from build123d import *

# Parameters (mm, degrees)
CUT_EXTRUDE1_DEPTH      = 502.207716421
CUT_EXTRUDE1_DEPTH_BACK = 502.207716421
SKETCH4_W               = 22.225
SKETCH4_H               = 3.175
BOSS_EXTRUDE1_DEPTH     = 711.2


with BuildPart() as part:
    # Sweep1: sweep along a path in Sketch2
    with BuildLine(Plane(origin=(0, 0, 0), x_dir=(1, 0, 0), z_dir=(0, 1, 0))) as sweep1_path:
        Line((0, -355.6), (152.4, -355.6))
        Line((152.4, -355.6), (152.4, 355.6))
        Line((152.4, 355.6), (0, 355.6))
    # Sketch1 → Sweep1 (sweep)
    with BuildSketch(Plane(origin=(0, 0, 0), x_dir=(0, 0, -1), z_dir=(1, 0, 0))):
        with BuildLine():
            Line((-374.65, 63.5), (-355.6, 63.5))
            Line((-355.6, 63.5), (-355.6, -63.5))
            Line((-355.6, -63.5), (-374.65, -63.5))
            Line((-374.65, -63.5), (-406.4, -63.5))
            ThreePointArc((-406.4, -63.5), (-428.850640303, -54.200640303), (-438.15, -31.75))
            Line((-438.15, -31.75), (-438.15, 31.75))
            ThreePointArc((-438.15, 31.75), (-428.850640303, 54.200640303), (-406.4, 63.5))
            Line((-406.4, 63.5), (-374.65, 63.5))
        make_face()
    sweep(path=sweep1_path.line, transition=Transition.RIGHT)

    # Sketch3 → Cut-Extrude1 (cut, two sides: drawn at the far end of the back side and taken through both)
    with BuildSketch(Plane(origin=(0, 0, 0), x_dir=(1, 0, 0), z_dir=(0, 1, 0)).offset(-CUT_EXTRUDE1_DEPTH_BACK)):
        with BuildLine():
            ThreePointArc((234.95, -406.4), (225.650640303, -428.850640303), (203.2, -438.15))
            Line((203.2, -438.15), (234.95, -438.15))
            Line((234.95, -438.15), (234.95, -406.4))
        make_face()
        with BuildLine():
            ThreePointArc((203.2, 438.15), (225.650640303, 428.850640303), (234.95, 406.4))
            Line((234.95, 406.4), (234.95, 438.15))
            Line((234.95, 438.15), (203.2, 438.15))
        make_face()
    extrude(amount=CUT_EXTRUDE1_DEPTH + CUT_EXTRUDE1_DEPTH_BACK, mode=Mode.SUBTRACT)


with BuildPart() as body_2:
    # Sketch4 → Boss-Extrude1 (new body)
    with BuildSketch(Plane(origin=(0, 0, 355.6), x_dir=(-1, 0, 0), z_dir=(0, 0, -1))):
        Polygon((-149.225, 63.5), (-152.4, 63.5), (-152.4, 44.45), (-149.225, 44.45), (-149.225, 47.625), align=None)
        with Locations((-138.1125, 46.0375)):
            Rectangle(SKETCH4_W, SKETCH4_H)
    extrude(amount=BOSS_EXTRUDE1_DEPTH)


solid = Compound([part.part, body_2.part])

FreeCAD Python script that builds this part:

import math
import FreeCAD as App
import Part
import Sketcher
from FreeCAD import Vector
Q = App.Units.Quantity

doc = App.newDocument("Part")
params = doc.addObject("Spreadsheet::Sheet", "Params")
for row, (alias, value) in enumerate([
    ("sketch1_width", "5 in"),
    ("sketch1_height", "2 in"),
    ("sketch1_radius", "1.25 in"),
    ("sketch2_width", "6 in"),
    ("sketch2_height", "28 in"),
    ("sketch3_radius", "1.25 in"),
    ("sketch4_width", "1 in"),
    ("sketch4_height", "0.75 in"),
    ("sketch4_width2", "0.125 in"),
    ("pad1_length", "28 in"),
], start=1):
    params.set(f"A{row}", alias)
    params.set(f"B{row}", "=" + value)
    params.setAlias(f"B{row}", alias)

body = doc.addObject("PartDesign::Body", "Body")

# Sketch on YZ plane
sketch1 = body.newObject("Sketcher::SketchObject", "Sketch")
sketch1.AttachmentSupport = (doc.getObject("YZ_Plane"), [""])
sketch1.MapMode = "FlatFace"
sketch1.addGeometry([
    Part.LineSegment(Vector(-64, 356, 0), Vector(64, 356, 0)),  # 0
    Part.LineSegment(Vector(64, 356, 0), Vector(64, 406, 0)),  # 1
    Part.ArcOfCircle(Part.Circle(Vector(32, 406, 0), Vector(0, 0, 1), 32), math.radians(0), math.radians(90)),  # 2
    Part.LineSegment(Vector(32, 438, 0), Vector(-32, 438, 0)),  # 3
    Part.ArcOfCircle(Part.Circle(Vector(-32, 406, 0), Vector(0, 0, 1), 32), math.radians(90), math.radians(180)),  # 4
    Part.LineSegment(Vector(-64, 406, 0), Vector(-64, 356, 0)),  # 5
], False)
sketch1.addConstraint([
    Sketcher.Constraint("Coincident", 0, 2, 1, 1),
    Sketcher.Constraint("Tangent", 1, 2, 2, 1),
    Sketcher.Constraint("Tangent", 2, 2, 3, 1),
    Sketcher.Constraint("Tangent", 3, 2, 4, 1),
    Sketcher.Constraint("Tangent", 4, 2, 5, 1),
    Sketcher.Constraint("Coincident", 5, 2, 0, 1),
    Sketcher.Constraint("Horizontal", 0),
    Sketcher.Constraint("Vertical", 1),
    Sketcher.Constraint("Horizontal", 3),
    Sketcher.Constraint("Vertical", 5),
    Sketcher.Constraint("Equal", 2, 4),
    Sketcher.Constraint("DistanceX", 0, 1, 0, 2, Q("5 in")),
    Sketcher.Constraint("DistanceY", 1, 1, 1, 2, Q("2 in")),
    Sketcher.Constraint("Radius", 2, Q("1.25 in")),
    Sketcher.Constraint("DistanceY", -1, 1, 2, 3, Q("16 in")),
    Sketcher.Constraint("DistanceX", -1, 1, 0, 2, Q("2.5 in")),
])
sketch1.setExpression("Constraints[11]", "Params.sketch1_width")
sketch1.setExpression("Constraints[12]", "Params.sketch1_height")
sketch1.setExpression("Constraints[13]", "Params.sketch1_radius")

# Sketch on XZ plane
sketch2 = body.newObject("Sketcher::SketchObject", "Sketch001")
sketch2.AttachmentSupport = (doc.getObject("XZ_Plane"), [""])
sketch2.MapMode = "FlatFace"
sketch2.addGeometry([
    Part.LineSegment(Vector(0, 356, 0), Vector(152, 356, 0)),
    Part.LineSegment(Vector(152, 356, 0), Vector(152, -356, 0)),
    Part.LineSegment(Vector(152, -356, 0), Vector(0, -356, 0)),
], False)
sketch2.addConstraint([
    Sketcher.Constraint("Coincident", 0, 2, 1, 1),
    Sketcher.Constraint("Coincident", 1, 2, 2, 1),
    Sketcher.Constraint("Horizontal", 0),
    Sketcher.Constraint("Vertical", 1),
    Sketcher.Constraint("Horizontal", 2),
    Sketcher.Constraint("Symmetric", 0, 1, 2, 2, -1, 1),
    Sketcher.Constraint("PointOnObject", 0, 1, -2),
    Sketcher.Constraint("DistanceX", 0, 1, 0, 2, Q("6 in")),
    Sketcher.Constraint("DistanceY", 1, 2, 1, 1, Q("28 in")),
])
sketch2.setExpression("Constraints[7]", "Params.sketch2_width")
sketch2.setExpression("Constraints[8]", "Params.sketch2_height")
doc.recompute()

additivepipe = body.newObject("PartDesign::AdditivePipe", "AdditivePipe")
additivepipe.Profile = sketch1
additivepipe.Spine = (sketch2, ["Edge1", "Edge2", "Edge3"])
additivepipe.Transition = "Right corner"

# Sketch on XZ plane
sketch3 = body.newObject("Sketcher::SketchObject", "Sketch002")
sketch3.AttachmentSupport = (doc.getObject("XZ_Plane"), [""])
sketch3.MapMode = "FlatFace"
sketch3.addGeometry([
    Part.ArcOfCircle(Part.Circle(Vector(203, 406, 0), Vector(0, 0, 1), 32), math.radians(0), math.radians(90)),  # 0
    Part.LineSegment(Vector(203, 438, 0), Vector(235, 438, 0)),  # 1
    Part.LineSegment(Vector(235, 438, 0), Vector(235, 406, 0)),  # 2
    Part.ArcOfCircle(Part.Circle(Vector(203, -406, 0), Vector(0, 0, 1), 32), math.radians(-90), math.radians(0)),  # 3
    Part.LineSegment(Vector(235, -406, 0), Vector(235, -438, 0)),  # 4
    Part.LineSegment(Vector(235, -438, 0), Vector(203, -438, 0)),  # 5
], False)
sketch3.addConstraint([
    Sketcher.Constraint("Tangent", 0, 2, 1, 1),
    Sketcher.Constraint("Coincident", 1, 2, 2, 1),
    Sketcher.Constraint("Tangent", 2, 2, 0, 1),
    Sketcher.Constraint("Tangent", 3, 2, 4, 1),
    Sketcher.Constraint("Coincident", 4, 2, 5, 1),
    Sketcher.Constraint("Tangent", 5, 2, 3, 1),
    Sketcher.Constraint("Horizontal", 1),
    Sketcher.Constraint("Vertical", 2),
    Sketcher.Constraint("Vertical", 4),
    Sketcher.Constraint("Horizontal", 5),
    Sketcher.Constraint("Equal", 0, 3),
    Sketcher.Constraint("Symmetric", 0, 3, 3, 3, -1),
    Sketcher.Constraint("Radius", 0, Q("1.25 in")),
    Sketcher.Constraint("DistanceX", -1, 1, 0, 3, Q("8 in")),
    Sketcher.Constraint("DistanceY", -1, 1, 0, 3, Q("16 in")),
])
sketch3.setExpression("Constraints[12]", "Params.sketch3_radius")
pocket1 = body.newObject("PartDesign::Pocket", "Pocket")
pocket1.Profile = sketch3
pocket1.Type = "ThroughAll"
pocket1.Midplane = True
body2 = doc.addObject("PartDesign::Body", "Body001")

# Sketch on XY plane
sketch4 = body2.newObject("Sketcher::SketchObject", "Sketch003")
sketch4.AttachmentSupport = (doc.getObject("XY_Plane001"), [""])
sketch4.MapMode = "FlatFace"
sketch4.AttachmentOffset = App.Placement(Vector(0, 0, 14 * 25.4), App.Rotation())
sketch4.addGeometry([
    Part.LineSegment(Vector(149.2, 63.5, 0), Vector(152.4, 63.5, 0)),  # 0
    Part.LineSegment(Vector(152.4, 63.5, 0), Vector(152.4, 44.5, 0)),  # 1
    Part.LineSegment(Vector(152.4, 44.5, 0), Vector(127, 44.5, 0)),  # 2
    Part.LineSegment(Vector(127, 44.5, 0), Vector(127, 47.6, 0)),  # 3
    Part.LineSegment(Vector(127, 47.6, 0), Vector(149.2, 47.6, 0)),  # 4
    Part.LineSegment(Vector(149.2, 47.6, 0), Vector(149.2, 63.5, 0)),  # 5
], False)
sketch4.addConstraint([
    Sketcher.Constraint("Coincident", 0, 2, 1, 1),
    Sketcher.Constraint("Coincident", 1, 2, 2, 1),
    Sketcher.Constraint("Coincident", 2, 2, 3, 1),
    Sketcher.Constraint("Coincident", 3, 2, 4, 1),
    Sketcher.Constraint("Coincident", 4, 2, 5, 1),
    Sketcher.Constraint("Coincident", 5, 2, 0, 1),
    Sketcher.Constraint("Horizontal", 0),
    Sketcher.Constraint("Vertical", 1),
    Sketcher.Constraint("Horizontal", 2),
    Sketcher.Constraint("Vertical", 3),
    Sketcher.Constraint("Horizontal", 4),
    Sketcher.Constraint("Vertical", 5),
    Sketcher.Constraint("Equal", 0, 3),
    Sketcher.Constraint("DistanceX", 2, 2, 2, 1, Q("1 in")),
    Sketcher.Constraint("DistanceX", -1, 1, 0, 2, Q("6 in")),
    Sketcher.Constraint("DistanceY", 1, 2, 1, 1, Q("0.75 in")),
    Sketcher.Constraint("DistanceY", -1, 1, 0, 2, Q("2.5 in")),
    Sketcher.Constraint("DistanceX", 0, 1, 0, 2, Q("0.125 in")),
])
sketch4.setExpression("Constraints[13]", "Params.sketch4_width")
sketch4.setExpression("Constraints[15]", "Params.sketch4_height")
sketch4.setExpression("Constraints[17]", "Params.sketch4_width2")
pad1 = body2.newObject("PartDesign::Pad", "Pad")
pad1.Profile = sketch4
pad1.setExpression("Length", "Params.pad1_length")
pad1.Reversed = True

doc.recompute()
